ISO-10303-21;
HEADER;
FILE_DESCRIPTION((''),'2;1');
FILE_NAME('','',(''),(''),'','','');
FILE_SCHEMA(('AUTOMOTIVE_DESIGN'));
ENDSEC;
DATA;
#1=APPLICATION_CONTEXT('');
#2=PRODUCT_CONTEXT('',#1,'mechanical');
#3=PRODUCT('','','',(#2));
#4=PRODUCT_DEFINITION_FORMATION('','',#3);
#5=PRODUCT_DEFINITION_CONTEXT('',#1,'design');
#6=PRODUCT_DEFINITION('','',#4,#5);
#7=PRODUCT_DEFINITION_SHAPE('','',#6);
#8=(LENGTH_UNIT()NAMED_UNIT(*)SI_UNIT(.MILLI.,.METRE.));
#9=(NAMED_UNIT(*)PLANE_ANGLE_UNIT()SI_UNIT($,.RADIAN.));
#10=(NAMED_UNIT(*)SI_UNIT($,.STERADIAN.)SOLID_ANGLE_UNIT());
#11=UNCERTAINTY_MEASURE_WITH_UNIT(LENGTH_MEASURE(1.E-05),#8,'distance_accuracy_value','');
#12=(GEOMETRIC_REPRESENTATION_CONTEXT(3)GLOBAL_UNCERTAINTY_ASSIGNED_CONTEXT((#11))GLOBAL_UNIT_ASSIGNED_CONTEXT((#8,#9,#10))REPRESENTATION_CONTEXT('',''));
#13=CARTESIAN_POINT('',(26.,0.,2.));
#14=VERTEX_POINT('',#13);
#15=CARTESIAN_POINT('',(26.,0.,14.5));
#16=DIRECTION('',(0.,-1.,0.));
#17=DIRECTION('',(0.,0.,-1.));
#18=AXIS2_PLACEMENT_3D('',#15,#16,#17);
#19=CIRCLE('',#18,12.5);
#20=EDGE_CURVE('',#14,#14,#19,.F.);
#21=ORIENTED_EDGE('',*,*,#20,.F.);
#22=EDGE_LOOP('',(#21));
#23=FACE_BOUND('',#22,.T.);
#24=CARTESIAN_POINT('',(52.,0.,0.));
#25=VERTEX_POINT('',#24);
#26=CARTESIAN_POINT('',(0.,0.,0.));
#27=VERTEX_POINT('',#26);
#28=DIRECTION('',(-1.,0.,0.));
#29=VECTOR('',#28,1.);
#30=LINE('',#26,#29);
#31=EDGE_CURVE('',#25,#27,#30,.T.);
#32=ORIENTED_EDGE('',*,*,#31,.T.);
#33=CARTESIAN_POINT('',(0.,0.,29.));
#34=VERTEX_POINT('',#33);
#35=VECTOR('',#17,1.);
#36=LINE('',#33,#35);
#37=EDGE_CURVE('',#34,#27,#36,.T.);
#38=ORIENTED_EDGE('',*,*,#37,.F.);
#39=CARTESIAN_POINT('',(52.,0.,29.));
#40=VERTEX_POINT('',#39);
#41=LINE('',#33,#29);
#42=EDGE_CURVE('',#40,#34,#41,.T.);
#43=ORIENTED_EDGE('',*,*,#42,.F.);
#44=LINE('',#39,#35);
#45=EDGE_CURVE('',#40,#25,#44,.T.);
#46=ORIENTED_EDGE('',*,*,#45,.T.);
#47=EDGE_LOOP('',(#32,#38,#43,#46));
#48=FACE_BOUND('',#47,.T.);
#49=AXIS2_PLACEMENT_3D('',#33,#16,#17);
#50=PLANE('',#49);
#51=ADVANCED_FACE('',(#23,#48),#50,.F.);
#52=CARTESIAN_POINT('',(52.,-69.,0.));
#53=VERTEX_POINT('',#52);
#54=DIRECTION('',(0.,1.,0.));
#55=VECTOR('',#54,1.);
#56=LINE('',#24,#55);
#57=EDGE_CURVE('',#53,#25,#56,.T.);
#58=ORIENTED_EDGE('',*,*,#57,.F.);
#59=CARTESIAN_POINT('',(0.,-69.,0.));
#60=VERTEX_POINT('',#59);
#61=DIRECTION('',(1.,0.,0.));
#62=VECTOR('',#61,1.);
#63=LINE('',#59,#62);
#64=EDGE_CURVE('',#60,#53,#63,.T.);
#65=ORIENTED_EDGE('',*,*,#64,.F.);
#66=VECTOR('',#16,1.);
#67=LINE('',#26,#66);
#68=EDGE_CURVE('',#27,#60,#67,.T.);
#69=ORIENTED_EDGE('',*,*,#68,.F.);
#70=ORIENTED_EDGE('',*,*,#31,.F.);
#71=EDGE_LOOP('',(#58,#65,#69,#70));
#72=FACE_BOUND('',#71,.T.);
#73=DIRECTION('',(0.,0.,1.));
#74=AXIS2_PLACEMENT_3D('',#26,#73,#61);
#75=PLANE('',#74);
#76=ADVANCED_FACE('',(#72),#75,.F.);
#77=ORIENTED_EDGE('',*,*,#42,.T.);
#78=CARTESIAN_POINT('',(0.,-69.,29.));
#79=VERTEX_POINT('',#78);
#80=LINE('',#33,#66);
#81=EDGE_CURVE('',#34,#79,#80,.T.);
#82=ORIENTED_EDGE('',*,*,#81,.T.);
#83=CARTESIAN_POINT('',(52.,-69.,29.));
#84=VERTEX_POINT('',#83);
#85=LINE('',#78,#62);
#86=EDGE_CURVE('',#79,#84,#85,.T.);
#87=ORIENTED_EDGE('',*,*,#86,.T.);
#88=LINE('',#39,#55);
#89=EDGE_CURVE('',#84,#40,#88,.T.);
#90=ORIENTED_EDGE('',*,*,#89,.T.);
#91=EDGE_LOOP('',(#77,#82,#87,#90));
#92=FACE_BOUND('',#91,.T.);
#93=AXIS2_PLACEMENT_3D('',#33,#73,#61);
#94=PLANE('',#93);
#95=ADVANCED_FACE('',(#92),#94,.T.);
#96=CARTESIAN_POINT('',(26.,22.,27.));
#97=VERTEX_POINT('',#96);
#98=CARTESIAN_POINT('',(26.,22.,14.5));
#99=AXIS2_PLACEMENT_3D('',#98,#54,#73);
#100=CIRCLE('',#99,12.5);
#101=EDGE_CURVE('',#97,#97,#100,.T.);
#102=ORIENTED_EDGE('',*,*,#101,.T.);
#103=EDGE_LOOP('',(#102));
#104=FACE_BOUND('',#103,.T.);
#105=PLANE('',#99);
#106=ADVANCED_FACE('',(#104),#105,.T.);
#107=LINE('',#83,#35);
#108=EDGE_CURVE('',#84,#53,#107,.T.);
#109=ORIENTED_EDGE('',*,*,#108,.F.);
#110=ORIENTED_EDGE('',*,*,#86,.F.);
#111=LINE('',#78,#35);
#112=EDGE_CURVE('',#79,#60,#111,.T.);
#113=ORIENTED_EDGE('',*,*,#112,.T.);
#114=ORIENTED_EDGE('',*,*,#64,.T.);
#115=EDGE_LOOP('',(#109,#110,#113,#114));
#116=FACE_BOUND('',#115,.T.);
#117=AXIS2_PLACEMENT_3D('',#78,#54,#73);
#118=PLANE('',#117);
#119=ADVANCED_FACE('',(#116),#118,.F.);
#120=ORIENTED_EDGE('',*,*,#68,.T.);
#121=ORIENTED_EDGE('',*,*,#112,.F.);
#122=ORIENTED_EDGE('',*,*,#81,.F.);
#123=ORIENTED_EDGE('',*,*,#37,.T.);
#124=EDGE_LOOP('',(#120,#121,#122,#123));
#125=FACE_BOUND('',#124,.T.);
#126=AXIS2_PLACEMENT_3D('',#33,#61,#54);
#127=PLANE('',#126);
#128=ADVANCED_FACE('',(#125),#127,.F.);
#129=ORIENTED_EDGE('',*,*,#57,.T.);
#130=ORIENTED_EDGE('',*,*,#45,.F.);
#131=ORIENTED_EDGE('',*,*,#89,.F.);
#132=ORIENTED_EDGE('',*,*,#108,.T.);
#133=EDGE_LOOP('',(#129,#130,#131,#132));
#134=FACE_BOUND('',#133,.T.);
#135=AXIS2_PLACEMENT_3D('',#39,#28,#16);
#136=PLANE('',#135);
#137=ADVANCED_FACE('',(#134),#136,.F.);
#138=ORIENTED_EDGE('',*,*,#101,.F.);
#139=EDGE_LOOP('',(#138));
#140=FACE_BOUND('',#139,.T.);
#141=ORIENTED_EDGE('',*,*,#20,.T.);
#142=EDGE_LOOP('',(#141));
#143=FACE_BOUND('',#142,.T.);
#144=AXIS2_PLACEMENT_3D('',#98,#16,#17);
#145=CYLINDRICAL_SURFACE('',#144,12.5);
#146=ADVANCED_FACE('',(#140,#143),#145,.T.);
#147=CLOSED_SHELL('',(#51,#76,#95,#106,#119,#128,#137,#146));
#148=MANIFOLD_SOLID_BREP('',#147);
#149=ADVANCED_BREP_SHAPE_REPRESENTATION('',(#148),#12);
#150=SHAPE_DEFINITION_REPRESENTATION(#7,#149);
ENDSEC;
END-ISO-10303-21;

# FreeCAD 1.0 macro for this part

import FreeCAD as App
import Part
import Sketcher
from FreeCAD import Vector

doc = App.newDocument("Part")
body = doc.addObject("PartDesign::Body", "Body")

# Sketch on XY plane
sketch1 = body.newObject("Sketcher::SketchObject", "Sketch")
sketch1.AttachmentSupport = (doc.getObject("XY_Plane"), [""])
sketch1.MapMode = "FlatFace"
sketch1.addGeometry([
    Part.LineSegment(Vector(0, 0, 0), Vector(0, -69, 0)),
    Part.LineSegment(Vector(0, -69, 0), Vector(52, -69, 0)),
    Part.LineSegment(Vector(52, -69, 0), Vector(52, 0, 0)),
    Part.LineSegment(Vector(52, 0, 0), Vector(0, 0, 0)),
], False)
sketch1.addConstraint([
    Sketcher.Constraint("Coincident", 0, 2, 1, 1),
    Sketcher.Constraint("Coincident", 1, 2, 2, 1),
    Sketcher.Constraint("Coincident", 2, 2, 3, 1),
    Sketcher.Constraint("Coincident", 3, 2, 0, 1),
    Sketcher.Constraint("Vertical", 0),
    Sketcher.Constraint("Horizontal", 1),
    Sketcher.Constraint("Vertical", 2),
    Sketcher.Constraint("Horizontal", 3),
    Sketcher.Constraint("Coincident", 3, 2, -1, 1),
    Sketcher.Constraint("DistanceX", 1, 1, 1, 2, 52.0),
    Sketcher.Constraint("DistanceY", 0, 2, 0, 1, 69.0),
])
pad1 = body.newObject("PartDesign::Pad", "Pad")
pad1.Profile = sketch1
pad1.Length = 29

# Sketch on XZ plane
sketch2 = body.newObject("Sketcher::SketchObject", "Sketch001")
sketch2.AttachmentSupport = (doc.getObject("XZ_Plane"), [""])
sketch2.MapMode = "FlatFace"
sketch2.addGeometry(Part.Circle(Vector(26, 14, 0), Vector(0, 0, 1), 12), False)
sketch2.addConstraint([
    Sketcher.Constraint("Diameter", 0, 25.0),
    Sketcher.Constraint("DistanceX", -1, 1, 0, 3, 26.0),
    Sketcher.Constraint("DistanceY", -1, 1, 0, 3, 14.5),
])
pad2 = body.newObject("PartDesign::Pad", "Pad001")
pad2.Profile = sketch2
pad2.Length = 22
pad2.Reversed = True

doc.recompute()
